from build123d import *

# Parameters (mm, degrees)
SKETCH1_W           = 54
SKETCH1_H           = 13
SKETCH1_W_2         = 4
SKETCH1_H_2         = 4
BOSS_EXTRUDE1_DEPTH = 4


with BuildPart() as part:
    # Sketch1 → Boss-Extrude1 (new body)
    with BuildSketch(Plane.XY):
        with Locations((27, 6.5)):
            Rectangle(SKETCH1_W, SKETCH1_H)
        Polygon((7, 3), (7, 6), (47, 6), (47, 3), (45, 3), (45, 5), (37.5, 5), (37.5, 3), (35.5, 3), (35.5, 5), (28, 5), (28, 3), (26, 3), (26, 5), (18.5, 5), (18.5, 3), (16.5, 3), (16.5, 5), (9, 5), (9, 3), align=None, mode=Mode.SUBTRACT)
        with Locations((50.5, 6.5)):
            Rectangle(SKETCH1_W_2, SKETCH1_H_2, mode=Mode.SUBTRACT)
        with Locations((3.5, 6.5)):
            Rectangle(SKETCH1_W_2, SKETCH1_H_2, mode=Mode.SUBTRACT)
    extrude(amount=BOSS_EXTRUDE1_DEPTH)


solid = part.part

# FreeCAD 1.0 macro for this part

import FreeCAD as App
import Part
import Sketcher
from FreeCAD import Vector


def add_polygon(sketch, points):
    """Adds a closed chain of lines whose ends are joined by coincident constraints."""
    first, n = sketch.GeometryCount, len(points)
    for a, b in zip(points, points[1:] + points[:1]):
        sketch.addGeometry(Part.LineSegment(App.Vector(*a, 0), App.Vector(*b, 0)), False)
    for i in range(n):
        sketch.addConstraint(Sketcher.Constraint("Coincident", first + i, 2, first + (i + 1) % n, 1))

doc = App.newDocument("Part")
body = doc.addObject("PartDesign::Body", "Body")

# Sketch on XY plane
sketch1 = doc.addObject("Sketcher::SketchObject", "Sketch")
body.addObject(sketch1)
sketch1.AttachmentSupport = (doc.XY_Plane, [""])
sketch1.MapMode = "FlatFace"
add_polygon(sketch1, [(0, 13), (0, 0), (54, 0), (54, 13)])  # lines 0-3
add_polygon(sketch1, [(9, 3), (7, 3), (7, 6), (47, 6), (47, 3), (45, 3), (45, 5), (37.5, 5), (37.5, 3), (35.5, 3), (35.5, 5), (28, 5), (28, 3), (26, 3), (26, 5), (18.5, 5), (18.5, 3), (16.5, 3), (16.5, 5), (9, 5)])  # lines 4-23
add_polygon(sketch1, [(5.5, 4.5), (1.5, 4.5), (1.5, 8.5), (5.5, 8.5)])  # lines 24-27
add_polygon(sketch1, [(52.5, 4.5), (48.5, 4.5), (48.5, 8.5), (52.5, 8.5)])  # lines 28-31
sketch1.addConstraint(Sketcher.Constraint("Vertical", 0))
sketch1.addConstraint(Sketcher.Constraint("Horizontal", 1))
sketch1.addConstraint(Sketcher.Constraint("Vertical", 2))
sketch1.addConstraint(Sketcher.Constraint("Horizontal", 3))
sketch1.addConstraint(Sketcher.Constraint("Horizontal", 4))
sketch1.addConstraint(Sketcher.Constraint("Vertical", 5))
sketch1.addConstraint(Sketcher.Constraint("Horizontal", 6))
sketch1.addConstraint(Sketcher.Constraint("Vertical", 7))
sketch1.addConstraint(Sketcher.Constraint("Horizontal", 8))
sketch1.addConstraint(Sketcher.Constraint("Vertical", 9))
sketch1.addConstraint(Sketcher.Constraint("Horizontal", 10))
sketch1.addConstraint(Sketcher.Constraint("Vertical", 11))
sketch1.addConstraint(Sketcher.Constraint("Horizontal", 12))
sketch1.addConstraint(Sketcher.Constraint("Vertical", 13))
sketch1.addConstraint(Sketcher.Constraint("Horizontal", 14))
sketch1.addConstraint(Sketcher.Constraint("Vertical", 15))
sketch1.addConstraint(Sketcher.Constraint("Horizontal", 16))
sketch1.addConstraint(Sketcher.Constraint("Vertical", 17))
sketch1.addConstraint(Sketcher.Constraint("Horizontal", 18))
sketch1.addConstraint(Sketcher.Constraint("Vertical", 19))
sketch1.addConstraint(Sketcher.Constraint("Horizontal", 20))
sketch1.addConstraint(Sketcher.Constraint("Vertical", 21))
sketch1.addConstraint(Sketcher.Constraint("Horizontal", 22))
sketch1.addConstraint(Sketcher.Constraint("Vertical", 23))
sketch1.addConstraint(Sketcher.Constraint("Horizontal", 24))
sketch1.addConstraint(Sketcher.Constraint("Vertical", 25))
sketch1.addConstraint(Sketcher.Constraint("Horizontal", 26))
sketch1.addConstraint(Sketcher.Constraint("Vertical", 27))
sketch1.addConstraint(Sketcher.Constraint("Horizontal", 28))
sketch1.addConstraint(Sketcher.Constraint("Vertical", 29))
sketch1.addConstraint(Sketcher.Constraint("Horizontal", 30))
sketch1.addConstraint(Sketcher.Constraint("Vertical", 31))
sketch1.addConstraint(Sketcher.Constraint("Coincident", 0, 2, -1, 1))
sketch1.addConstraint(Sketcher.Constraint("Horizontal", 4, 2, 7, 2))
sketch1.addConstraint(Sketcher.Constraint("Horizontal", 8, 2, 11, 2))
sketch1.addConstraint(Sketcher.Constraint("Horizontal", 10, 2, 13, 2))
sketch1.addConstraint(Sketcher.Constraint("Horizontal", 12, 2, 15, 2))
sketch1.addConstraint(Sketcher.Constraint("Horizontal", 14, 2, 17, 2))
sketch1.addConstraint(Sketcher.Constraint("Horizontal", 16, 2, 19, 2))
sketch1.addConstraint(Sketcher.Constraint("Horizontal", 18, 2, 21, 2))
sketch1.addConstraint(Sketcher.Constraint("Horizontal", 27, 2, 28, 2))
sketch1.addConstraint(Sketcher.Constraint("Horizontal", 26, 2, 29, 2))
sketch1.addConstraint(Sketcher.Constraint("Equal", 4, 8))
sketch1.addConstraint(Sketcher.Constraint("Equal", 8, 12))
sketch1.addConstraint(Sketcher.Constraint("Equal", 10, 14))
sketch1.addConstraint(Sketcher.Constraint("Equal", 12, 16))
sketch1.addConstraint(Sketcher.Constraint("Equal", 14, 18))
sketch1.addConstraint(Sketcher.Constraint("Equal", 16, 20))
sketch1.addConstraint(Sketcher.Constraint("Equal", 18, 22))
sketch1.addConstraint(Sketcher.Constraint("Equal", 26, 28))
sketch1.addConstraint(Sketcher.Constraint("Equal", 20, 9))
sketch1.addConstraint(Sketcher.Constraint("Equal", 30, 25))
sketch1.addConstraint(Sketcher.Constraint("DistanceX", 1, 1, 1, 2, 54.0))
sketch1.addConstraint(Sketcher.Constraint("DistanceX", 4, 2, 4, 1, 2.0))
sketch1.addConstraint(Sketcher.Constraint("DistanceX", 6, 1, 6, 2, 40.0))
sketch1.addConstraint(Sketcher.Constraint("DistanceX", 24, 2, 24, 1, 4.0))
sketch1.addConstraint(Sketcher.Constraint("DistanceY", 0, 2, 0, 1, 13.0))
sketch1.addConstraint(Sketcher.Constraint("DistanceY", 5, 1, 5, 2, 3.0))
sketch1.addConstraint(Sketcher.Constraint("DistanceX", -1, 1, 4, 2, 7.0))
sketch1.addConstraint(Sketcher.Constraint("DistanceY", -1, 1, 4, 2, 3.0))
sketch1.addConstraint(Sketcher.Constraint("DistanceX", -1, 1, 24, 2, 1.5))
sketch1.addConstraint(Sketcher.Constraint("DistanceY", -1, 1, 24, 2, 4.5))
sketch1.addConstraint(Sketcher.Constraint("DistanceX", -1, 1, 28, 2, 48.5))
pad1 = doc.addObject("PartDesign::Pad", "Pad")
body.addObject(pad1)
pad1.Profile = sketch1
pad1.Length = 4

doc.recompute()
